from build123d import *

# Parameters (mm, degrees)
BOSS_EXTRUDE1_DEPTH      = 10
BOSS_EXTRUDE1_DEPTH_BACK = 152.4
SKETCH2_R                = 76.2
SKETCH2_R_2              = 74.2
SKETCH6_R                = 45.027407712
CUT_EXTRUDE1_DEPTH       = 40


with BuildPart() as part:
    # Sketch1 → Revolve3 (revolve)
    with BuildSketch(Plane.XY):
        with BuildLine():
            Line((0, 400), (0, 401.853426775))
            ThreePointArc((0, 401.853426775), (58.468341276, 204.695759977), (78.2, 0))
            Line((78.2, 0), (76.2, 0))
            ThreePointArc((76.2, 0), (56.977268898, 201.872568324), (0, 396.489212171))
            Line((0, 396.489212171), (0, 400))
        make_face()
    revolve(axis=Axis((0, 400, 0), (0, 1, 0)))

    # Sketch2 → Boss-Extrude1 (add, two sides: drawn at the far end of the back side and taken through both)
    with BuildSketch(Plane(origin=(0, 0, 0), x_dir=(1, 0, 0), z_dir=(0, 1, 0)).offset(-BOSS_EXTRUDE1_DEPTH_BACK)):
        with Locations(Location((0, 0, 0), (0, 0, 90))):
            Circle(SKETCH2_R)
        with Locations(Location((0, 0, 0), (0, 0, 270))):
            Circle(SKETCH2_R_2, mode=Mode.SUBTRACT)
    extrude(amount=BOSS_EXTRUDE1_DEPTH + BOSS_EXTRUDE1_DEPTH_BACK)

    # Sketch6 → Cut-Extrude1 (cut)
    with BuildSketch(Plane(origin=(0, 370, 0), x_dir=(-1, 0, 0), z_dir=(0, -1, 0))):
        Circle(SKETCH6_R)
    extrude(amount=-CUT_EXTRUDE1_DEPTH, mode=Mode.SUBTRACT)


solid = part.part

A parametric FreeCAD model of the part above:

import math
import FreeCAD as App
import Part
import Sketcher

V = App.Vector

doc = App.newDocument("Part")
body = doc.addObject("PartDesign::Body", "Body")

# Sketch on XY plane
sketch1 = body.newObject("Sketcher::SketchObject", "Sketch")
sketch1.AttachmentSupport = (doc.getObject("XY_Plane"), [""])
sketch1.MapMode = "FlatFace"
sketch1.addGeometry([
    Part.ArcOfCircle(Part.Circle(V(-993.420311, 0, 0), V(0, 0, 1), 1071.620311), math.radians(0), math.radians(22.024071)),
    Part.LineSegment(V(0, 401.853427, 0), V(0, 396.489212, 0)),
    Part.ArcOfCircle(Part.Circle(V(-993.420311, 0, 0), V(0, 0, 1), 1069.620311), math.radians(0), math.radians(21.757697)),
    Part.LineSegment(V(76.2, 0, 0), V(78.2, 0, 0)),
], False)
sketch1.addConstraint([
    Sketcher.Constraint("Coincident", 0, 2, 1, 1),
    Sketcher.Constraint("Coincident", 1, 2, 2, 2),
    Sketcher.Constraint("Coincident", 2, 1, 3, 1),
    Sketcher.Constraint("Coincident", 3, 2, 0, 1),
    Sketcher.Constraint("Vertical", 1),
    Sketcher.Constraint("Horizontal", 3),
    Sketcher.Constraint("Coincident", 2, 3, 0, 3),
    Sketcher.Constraint("PointOnObject", 0, 3, -1),
    Sketcher.Constraint("PointOnObject", 1, 2, -2),
    Sketcher.Constraint("PointOnObject", 3, 2, -1),
    Sketcher.Constraint("DistanceX", 3, 1, 3, 2, 2.0),
    Sketcher.Constraint("DistanceX", -1, 1, 2, 1, 76.2),
    Sketcher.Constraint("Radius", 0, 1071.620311),
])
revolution = body.newObject("PartDesign::Revolution", "Revolution")
revolution.Profile = sketch1
revolution.ReferenceAxis = (sketch1, ["V_Axis"])
revolution.Angle = 360

# Sketch on XZ plane
sketch2 = body.newObject("Sketcher::SketchObject", "Sketch001")
sketch2.AttachmentSupport = (doc.getObject("XZ_Plane"), [""])
sketch2.MapMode = "FlatFace"
sketch2.addGeometry([
    Part.Circle(V(0, 0, 0), V(0, 0, 1), 76.2),
    Part.Circle(V(0, 0, 0), V(0, 0, 1), 74.2),
], False)
sketch2.addConstraint([
    Sketcher.Constraint("Coincident", 0, 3, -1, 1),
    Sketcher.Constraint("Coincident", 1, 3, -1, 1),
    Sketcher.Constraint("Diameter", 0, 152.4),
    Sketcher.Constraint("Diameter", 1, 148.4),
])
pad1 = body.newObject("PartDesign::Pad", "Pad")
pad1.Profile = sketch2
pad1.Type = "TwoLengths"
pad1.Length = 10
pad1.Length2 = 152.4
pad1.Reversed = True

# Sketch on XZ plane
sketch3 = body.newObject("Sketcher::SketchObject", "Sketch002")
sketch3.AttachmentSupport = (doc.getObject("XZ_Plane"), [""])
sketch3.MapMode = "FlatFace"
sketch3.AttachmentOffset = App.Placement(V(0, 0, -370), App.Rotation())
sketch3.addGeometry(Part.Circle(V(0, 0, 0), V(0, 0, 1), 45.027408), False)
sketch3.addConstraint([
    Sketcher.Constraint("Coincident", 0, 3, -1, 1),
    Sketcher.Constraint("Diameter", 0, 90.054815),
])
pocket1 = body.newObject("PartDesign::Pocket", "Pocket")
pocket1.Profile = sketch3
pocket1.Length = 40

doc.recompute()
